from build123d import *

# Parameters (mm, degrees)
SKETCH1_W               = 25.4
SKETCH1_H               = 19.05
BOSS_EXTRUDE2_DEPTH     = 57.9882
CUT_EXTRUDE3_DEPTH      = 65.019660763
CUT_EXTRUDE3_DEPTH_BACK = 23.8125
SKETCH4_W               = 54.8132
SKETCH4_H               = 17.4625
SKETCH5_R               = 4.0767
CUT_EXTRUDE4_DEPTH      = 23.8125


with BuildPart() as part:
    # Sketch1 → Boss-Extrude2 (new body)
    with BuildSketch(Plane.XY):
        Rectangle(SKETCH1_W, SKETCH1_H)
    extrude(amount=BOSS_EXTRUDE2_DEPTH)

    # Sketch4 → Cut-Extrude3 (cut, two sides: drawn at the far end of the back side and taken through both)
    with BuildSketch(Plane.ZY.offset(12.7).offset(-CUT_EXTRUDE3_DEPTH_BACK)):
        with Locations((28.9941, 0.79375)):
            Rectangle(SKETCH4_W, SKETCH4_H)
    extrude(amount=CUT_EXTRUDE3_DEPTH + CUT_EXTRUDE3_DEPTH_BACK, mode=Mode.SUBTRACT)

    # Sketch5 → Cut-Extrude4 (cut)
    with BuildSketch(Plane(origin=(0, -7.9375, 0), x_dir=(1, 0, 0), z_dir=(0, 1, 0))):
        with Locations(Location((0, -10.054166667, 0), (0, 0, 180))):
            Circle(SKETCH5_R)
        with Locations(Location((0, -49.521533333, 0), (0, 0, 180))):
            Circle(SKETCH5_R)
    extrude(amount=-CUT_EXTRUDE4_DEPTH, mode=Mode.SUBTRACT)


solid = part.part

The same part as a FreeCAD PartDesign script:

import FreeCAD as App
import Part
import Sketcher
Q = App.Units.Quantity


def add_polygon(sketch, points):
    """Adds a closed chain of lines whose ends are joined by coincident constraints."""
    first, n = sketch.GeometryCount, len(points)
    for a, b in zip(points, points[1:] + points[:1]):
        sketch.addGeometry(Part.LineSegment(App.Vector(*a, 0), App.Vector(*b, 0)), False)
    for i in range(n):
        sketch.addConstraint(Sketcher.Constraint("Coincident", first + i, 2, first + (i + 1) % n, 1))

doc = App.newDocument("Part")
body = doc.addObject("PartDesign::Body", "Body")

sketch1 = body.newObject("Sketcher::SketchObject", "Sketch")
sketch1.AttachmentSupport = (doc.getObject("XY_Plane"), [""])
sketch1.MapMode = "FlatFace"
add_polygon(sketch1, [(-13, 10), (-13, -10), (13, -10), (13, 10)])
sketch1.addConstraint(Sketcher.Constraint("Vertical", 0))
sketch1.addConstraint(Sketcher.Constraint("Horizontal", 1))
sketch1.addConstraint(Sketcher.Constraint("Vertical", 2))
sketch1.addConstraint(Sketcher.Constraint("Horizontal", 3))
sketch1.addConstraint(Sketcher.Constraint("Symmetric", 0, 2, 2, 2, -1, 1))
sketch1.addConstraint(Sketcher.Constraint("DistanceX", 1, 1, 1, 2, Q("1 in")))
sketch1.addConstraint(Sketcher.Constraint("DistanceY", 0, 2, 0, 1, Q("0.75 in")))
pad1 = body.newObject("PartDesign::Pad", "Pad")
pad1.Profile = sketch1
pad1.Length = Q("2.283 in")

sketch2 = body.newObject("Sketcher::SketchObject", "Sketch001")
sketch2.AttachmentSupport = (doc.getObject("YZ_Plane"), [""])
sketch2.MapMode = "FlatFace"
sketch2.AttachmentOffset = App.Placement(App.Vector(0, 0, -0.5 * 25.4), App.Rotation())
add_polygon(sketch2, [(10, 2), (-8, 2), (-8, 56), (10, 56)])
sketch2.addConstraint(Sketcher.Constraint("Horizontal", 0))
sketch2.addConstraint(Sketcher.Constraint("Vertical", 1))
sketch2.addConstraint(Sketcher.Constraint("Horizontal", 2))
sketch2.addConstraint(Sketcher.Constraint("Vertical", 3))
sketch2.addConstraint(Sketcher.Constraint("DistanceX", 0, 2, 0, 1, Q("0.6875 in")))
sketch2.addConstraint(Sketcher.Constraint("DistanceY", 1, 1, 1, 2, Q("2.158 in")))
sketch2.addConstraint(Sketcher.Constraint("DistanceX", 0, 2, -1, 1, Q("0.3125 in")))
sketch2.addConstraint(Sketcher.Constraint("DistanceY", -1, 1, 0, 2, Q("0.0625 in")))
pocket1 = body.newObject("PartDesign::Pocket", "Pocket")
pocket1.Profile = sketch2
pocket1.Type = "TwoLengths"
pocket1.Length = 65.019661
pocket1.Length2 = Q("0.9375 in")

sketch3 = body.newObject("Sketcher::SketchObject", "Sketch002")
sketch3.AttachmentSupport = (doc.getObject("XZ_Plane"), [""])
sketch3.MapMode = "FlatFace"
sketch3.AttachmentOffset = App.Placement(App.Vector(0, 0, 0.3125 * 25.4), App.Rotation())
sketch3.addGeometry(Part.Circle(App.Vector(0, 10.1, 0), App.Vector(0, 0, 1), 4.1), False)
sketch3.addGeometry(Part.Circle(App.Vector(0, 49.5, 0), App.Vector(0, 0, 1), 4.1), False)
sketch3.addConstraint(Sketcher.Constraint("Equal", 0, 1))
sketch3.addConstraint(Sketcher.Constraint("PointOnObject", 0, 3, -2))
sketch3.addConstraint(Sketcher.Constraint("PointOnObject", 1, 3, -2))
sketch3.addConstraint(Sketcher.Constraint("Diameter", 0, Q("0.321 in")))
sketch3.addConstraint(Sketcher.Constraint("DistanceY", -1, 1, 0, 3, Q("10.054167 mm")))
sketch3.addConstraint(Sketcher.Constraint("DistanceY", -1, 1, 1, 3, Q("49.521533 mm")))
pocket2 = body.newObject("PartDesign::Pocket", "Pocket001")
pocket2.Profile = sketch3
pocket2.Length = Q("0.9375 in")
pocket2.Reversed = True

doc.recompute()
